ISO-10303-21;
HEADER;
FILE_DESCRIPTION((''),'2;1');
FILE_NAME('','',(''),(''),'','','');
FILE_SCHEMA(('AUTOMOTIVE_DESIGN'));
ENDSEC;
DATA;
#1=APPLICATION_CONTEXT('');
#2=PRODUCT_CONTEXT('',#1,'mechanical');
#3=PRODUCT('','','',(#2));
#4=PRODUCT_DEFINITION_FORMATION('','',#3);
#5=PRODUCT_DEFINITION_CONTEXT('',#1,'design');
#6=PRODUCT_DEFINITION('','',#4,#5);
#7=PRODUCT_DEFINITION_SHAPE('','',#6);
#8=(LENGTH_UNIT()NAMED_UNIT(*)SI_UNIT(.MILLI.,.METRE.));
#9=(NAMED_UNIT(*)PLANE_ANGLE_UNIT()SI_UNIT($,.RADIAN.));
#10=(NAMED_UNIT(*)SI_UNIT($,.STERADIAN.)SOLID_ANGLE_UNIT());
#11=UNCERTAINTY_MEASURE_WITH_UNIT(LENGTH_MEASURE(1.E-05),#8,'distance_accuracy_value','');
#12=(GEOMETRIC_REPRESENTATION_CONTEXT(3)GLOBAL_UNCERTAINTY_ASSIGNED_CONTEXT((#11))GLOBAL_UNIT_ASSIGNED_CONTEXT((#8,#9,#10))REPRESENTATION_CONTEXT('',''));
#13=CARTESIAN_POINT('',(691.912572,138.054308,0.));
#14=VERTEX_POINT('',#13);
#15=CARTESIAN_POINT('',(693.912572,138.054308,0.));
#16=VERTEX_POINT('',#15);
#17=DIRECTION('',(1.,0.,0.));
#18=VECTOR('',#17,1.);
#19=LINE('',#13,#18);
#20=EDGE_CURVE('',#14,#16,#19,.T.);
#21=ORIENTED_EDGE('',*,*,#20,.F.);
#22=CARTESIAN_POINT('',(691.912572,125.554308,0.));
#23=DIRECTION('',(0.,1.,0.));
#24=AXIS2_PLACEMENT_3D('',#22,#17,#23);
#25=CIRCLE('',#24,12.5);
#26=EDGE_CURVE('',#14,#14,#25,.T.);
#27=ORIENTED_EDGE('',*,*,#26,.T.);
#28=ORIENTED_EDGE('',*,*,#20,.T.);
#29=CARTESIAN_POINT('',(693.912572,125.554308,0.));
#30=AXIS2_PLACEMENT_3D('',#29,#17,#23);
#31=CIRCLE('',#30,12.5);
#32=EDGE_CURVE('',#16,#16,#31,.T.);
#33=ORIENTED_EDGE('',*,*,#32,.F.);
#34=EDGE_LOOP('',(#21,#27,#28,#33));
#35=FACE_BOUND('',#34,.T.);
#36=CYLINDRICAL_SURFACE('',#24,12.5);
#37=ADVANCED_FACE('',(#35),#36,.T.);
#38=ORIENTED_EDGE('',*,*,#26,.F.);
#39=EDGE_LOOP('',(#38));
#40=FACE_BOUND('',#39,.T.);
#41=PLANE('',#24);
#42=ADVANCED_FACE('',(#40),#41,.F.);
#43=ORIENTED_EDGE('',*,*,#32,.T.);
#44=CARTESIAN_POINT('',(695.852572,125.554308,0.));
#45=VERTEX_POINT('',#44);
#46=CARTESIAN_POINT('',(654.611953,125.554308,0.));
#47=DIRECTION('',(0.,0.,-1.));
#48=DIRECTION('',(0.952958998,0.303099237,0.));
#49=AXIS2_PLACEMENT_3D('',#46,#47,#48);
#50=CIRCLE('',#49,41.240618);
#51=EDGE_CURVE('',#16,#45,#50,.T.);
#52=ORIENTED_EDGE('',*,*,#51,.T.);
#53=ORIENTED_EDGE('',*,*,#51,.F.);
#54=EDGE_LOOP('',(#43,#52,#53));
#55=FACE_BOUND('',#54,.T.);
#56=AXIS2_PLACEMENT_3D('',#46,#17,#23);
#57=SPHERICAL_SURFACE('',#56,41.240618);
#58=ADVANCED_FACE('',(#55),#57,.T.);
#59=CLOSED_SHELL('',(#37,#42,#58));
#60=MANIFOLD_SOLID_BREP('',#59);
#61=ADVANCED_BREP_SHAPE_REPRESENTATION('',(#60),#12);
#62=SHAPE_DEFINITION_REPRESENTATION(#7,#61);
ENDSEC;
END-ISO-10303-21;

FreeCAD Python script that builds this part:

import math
import FreeCAD as App
import Part
import Sketcher
Q = App.Units.Quantity

doc = App.newDocument("Part")
params = doc.addObject("Spreadsheet::Sheet", "Params")
for row, (alias, value) in enumerate([
    ("sketch1_width", "2 mm"),
    ("sketch1_height", "12.5 mm"),
    ("sketch1_width2", "3.94 mm"),
    ("revolution_angle", "360 deg"),
], start=1):
    params.set(f"A{row}", alias)
    params.set(f"B{row}", "=" + value)
    params.setAlias(f"B{row}", alias)

body = doc.addObject("PartDesign::Body", "Body")

sketch1 = body.newObject("Sketcher::SketchObject", "Sketch")
sketch1.AttachmentSupport = (doc.getObject("XY_Plane"), [""])
sketch1.MapMode = "FlatFace"
sketch1.addGeometry([
    Part.LineSegment(App.Vector(691.912572, 138.054308, 0), App.Vector(691.912572, 125.554308, 0)),
    Part.LineSegment(App.Vector(691.912572, 125.554308, 0), App.Vector(695.852572, 125.554308, 0)),
    Part.ArcOfCircle(Part.Circle(App.Vector(654.611953, 125.554308, 0), App.Vector(0, 0, 1), 41.240618), math.radians(0), math.radians(17.643846)),
    Part.LineSegment(App.Vector(693.912572, 138.054308, 0), App.Vector(691.912572, 138.054308, 0)),
], False)
sketch1.addGeometry(Part.LineSegment(App.Vector(654.611953, 125.554308, 0), App.Vector(695.852572, 125.554308, 0)), True)
sketch1.addConstraint([
    Sketcher.Constraint("Coincident", 0, 2, 1, 1),
    Sketcher.Constraint("Coincident", 1, 2, 2, 1),
    Sketcher.Constraint("Coincident", 2, 2, 3, 1),
    Sketcher.Constraint("Coincident", 3, 2, 0, 1),
    Sketcher.Constraint("Vertical", 0),
    Sketcher.Constraint("Horizontal", 1),
    Sketcher.Constraint("Horizontal", 3),
    Sketcher.Constraint("Horizontal", 4),
    Sketcher.Constraint("Coincident", 4, 1, 2, 3),
    Sketcher.Constraint("Coincident", 4, 2, 1, 2),
    Sketcher.Constraint("DistanceX", 3, 2, 3, 1, Q("2 mm")),
    Sketcher.Constraint("DistanceY", 0, 2, 0, 1, Q("12.5 mm")),
    Sketcher.Constraint("DistanceX", 1, 1, 1, 2, Q("3.94 mm")),
    Sketcher.Constraint("DistanceX", -1, 1, 0, 2, Q("691.912572 mm")),
    Sketcher.Constraint("DistanceY", -1, 1, 2, 3, Q("125.554308 mm")),
])
sketch1.setExpression("Constraints[10]", "Params.sketch1_width")
sketch1.setExpression("Constraints[11]", "Params.sketch1_height")
sketch1.setExpression("Constraints[12]", "Params.sketch1_width2")
revolution = body.newObject("PartDesign::Revolution", "Revolution")
revolution.Profile = sketch1
revolution.ReferenceAxis = (sketch1, ["Axis0"])
revolution.setExpression("Angle", "Params.revolution_angle")

doc.recompute()
